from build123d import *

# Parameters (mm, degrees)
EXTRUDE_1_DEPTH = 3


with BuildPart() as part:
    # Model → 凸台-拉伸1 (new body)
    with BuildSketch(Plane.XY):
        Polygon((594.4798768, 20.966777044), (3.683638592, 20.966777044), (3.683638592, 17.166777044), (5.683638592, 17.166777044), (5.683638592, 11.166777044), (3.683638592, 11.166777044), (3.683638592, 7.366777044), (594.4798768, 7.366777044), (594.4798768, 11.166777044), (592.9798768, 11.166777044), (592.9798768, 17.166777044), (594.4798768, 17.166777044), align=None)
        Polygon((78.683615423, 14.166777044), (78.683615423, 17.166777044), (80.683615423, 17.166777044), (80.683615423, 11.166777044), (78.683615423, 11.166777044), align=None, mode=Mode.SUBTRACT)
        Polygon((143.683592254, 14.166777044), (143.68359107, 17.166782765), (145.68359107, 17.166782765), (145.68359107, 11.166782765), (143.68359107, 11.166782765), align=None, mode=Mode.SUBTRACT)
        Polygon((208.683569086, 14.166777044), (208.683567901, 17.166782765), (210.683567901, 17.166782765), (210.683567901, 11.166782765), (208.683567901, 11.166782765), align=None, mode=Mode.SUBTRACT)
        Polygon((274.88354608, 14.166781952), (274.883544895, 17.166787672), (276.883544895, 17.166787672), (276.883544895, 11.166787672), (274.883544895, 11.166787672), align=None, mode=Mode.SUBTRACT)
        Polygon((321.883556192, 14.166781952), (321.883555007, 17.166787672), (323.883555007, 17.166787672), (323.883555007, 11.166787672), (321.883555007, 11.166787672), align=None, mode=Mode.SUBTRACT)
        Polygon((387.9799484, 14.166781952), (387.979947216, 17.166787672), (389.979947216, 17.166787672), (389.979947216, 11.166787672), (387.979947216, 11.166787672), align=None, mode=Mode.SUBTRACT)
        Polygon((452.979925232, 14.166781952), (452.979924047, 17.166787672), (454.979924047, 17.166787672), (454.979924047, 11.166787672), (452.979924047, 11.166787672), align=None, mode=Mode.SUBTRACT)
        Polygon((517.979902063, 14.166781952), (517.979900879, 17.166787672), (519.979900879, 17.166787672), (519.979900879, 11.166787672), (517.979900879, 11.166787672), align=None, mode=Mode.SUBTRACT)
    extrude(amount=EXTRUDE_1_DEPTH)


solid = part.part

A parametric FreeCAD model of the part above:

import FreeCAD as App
import Part
import Sketcher

doc = App.newDocument("Part")
body = doc.addObject("PartDesign::Body", "Body")

# Sketch on XY plane
sketch1 = doc.addObject("Sketcher::SketchObject", "Sketch")
body.addObject(sketch1)
sketch1.AttachmentSupport = (doc.XY_Plane, [""])
sketch1.MapMode = "FlatFace"
sketch1.addGeometry([
    Part.LineSegment(App.Vector(594.5, 21, 0), App.Vector(3.7, 21, 0)),  # 0
    Part.LineSegment(App.Vector(3.7, 21, 0), App.Vector(3.7, 17.2, 0)),  # 1
    Part.LineSegment(App.Vector(3.7, 17.2, 0), App.Vector(5.7, 17.2, 0)),  # 2
    Part.LineSegment(App.Vector(5.7, 17.2, 0), App.Vector(5.7, 11.2, 0)),  # 3
    Part.LineSegment(App.Vector(5.7, 11.2, 0), App.Vector(3.7, 11.2, 0)),  # 4
    Part.LineSegment(App.Vector(3.7, 11.2, 0), App.Vector(3.7, 7.4, 0)),  # 5
    Part.LineSegment(App.Vector(3.7, 7.4, 0), App.Vector(594.5, 7.4, 0)),  # 6
    Part.LineSegment(App.Vector(594.5, 7.4, 0), App.Vector(594.5, 11.2, 0)),  # 7
    Part.LineSegment(App.Vector(594.5, 11.2, 0), App.Vector(593, 11.2, 0)),  # 8
    Part.LineSegment(App.Vector(593, 11.2, 0), App.Vector(593, 17.2, 0)),  # 9
    Part.LineSegment(App.Vector(593, 17.2, 0), App.Vector(594.5, 17.2, 0)),  # 10
    Part.LineSegment(App.Vector(594.5, 17.2, 0), App.Vector(594.5, 21, 0)),  # 11
    Part.LineSegment(App.Vector(78.7, 11.2, 0), App.Vector(78.7, 17.2, 0)),  # 12
    Part.LineSegment(App.Vector(78.7, 17.2, 0), App.Vector(80.7, 17.2, 0)),  # 13
    Part.LineSegment(App.Vector(80.7, 17.2, 0), App.Vector(80.7, 11.2, 0)),  # 14
    Part.LineSegment(App.Vector(80.7, 11.2, 0), App.Vector(78.7, 11.2, 0)),  # 15
    Part.LineSegment(App.Vector(143.7, 11.2, 0), App.Vector(143.7, 14.2, 0)),  # 16
    Part.LineSegment(App.Vector(143.7, 14.2, 0), App.Vector(143.7, 17.2, 0)),  # 17
    Part.LineSegment(App.Vector(143.7, 17.2, 0), App.Vector(145.7, 17.2, 0)),  # 18
    Part.LineSegment(App.Vector(145.7, 17.2, 0), App.Vector(145.7, 11.2, 0)),  # 19
    Part.LineSegment(App.Vector(145.7, 11.2, 0), App.Vector(143.7, 11.2, 0)),  # 20
    Part.LineSegment(App.Vector(208.7, 11.2, 0), App.Vector(208.7, 14.2, 0)),  # 21
    Part.LineSegment(App.Vector(208.7, 14.2, 0), App.Vector(208.7, 17.2, 0)),  # 22
    Part.LineSegment(App.Vector(208.7, 17.2, 0), App.Vector(210.7, 17.2, 0)),  # 23
    Part.LineSegment(App.Vector(210.7, 17.2, 0), App.Vector(210.7, 11.2, 0)),  # 24
    Part.LineSegment(App.Vector(210.7, 11.2, 0), App.Vector(208.7, 11.2, 0)),  # 25
    Part.LineSegment(App.Vector(274.9, 11.2, 0), App.Vector(274.9, 14.2, 0)),  # 26
    Part.LineSegment(App.Vector(274.9, 14.2, 0), App.Vector(274.9, 17.2, 0)),  # 27
    Part.LineSegment(App.Vector(274.9, 17.2, 0), App.Vector(276.9, 17.2, 0)),  # 28
    Part.LineSegment(App.Vector(276.9, 17.2, 0), App.Vector(276.9, 11.2, 0)),  # 29
    Part.LineSegment(App.Vector(276.9, 11.2, 0), App.Vector(274.9, 11.2, 0)),  # 30
    Part.LineSegment(App.Vector(321.9, 11.2, 0), App.Vector(321.9, 14.2, 0)),  # 31
    Part.LineSegment(App.Vector(321.9, 14.2, 0), App.Vector(321.9, 17.2, 0)),  # 32
    Part.LineSegment(App.Vector(321.9, 17.2, 0), App.Vector(323.9, 17.2, 0)),  # 33
    Part.LineSegment(App.Vector(323.9, 17.2, 0), App.Vector(323.9, 11.2, 0)),  # 34
    Part.LineSegment(App.Vector(323.9, 11.2, 0), App.Vector(321.9, 11.2, 0)),  # 35
    Part.LineSegment(App.Vector(388, 11.2, 0), App.Vector(388, 14.2, 0)),  # 36
    Part.LineSegment(App.Vector(388, 14.2, 0), App.Vector(388, 17.2, 0)),  # 37
    Part.LineSegment(App.Vector(388, 17.2, 0), App.Vector(390, 17.2, 0)),  # 38
    Part.LineSegment(App.Vector(390, 17.2, 0), App.Vector(390, 11.2, 0)),  # 39
    Part.LineSegment(App.Vector(390, 11.2, 0), App.Vector(388, 11.2, 0)),  # 40
    Part.LineSegment(App.Vector(453, 11.2, 0), App.Vector(453, 14.2, 0)),  # 41
    Part.LineSegment(App.Vector(453, 14.2, 0), App.Vector(453, 17.2, 0)),  # 42
    Part.LineSegment(App.Vector(453, 17.2, 0), App.Vector(455, 17.2, 0)),  # 43
    Part.LineSegment(App.Vector(455, 17.2, 0), App.Vector(455, 11.2, 0)),  # 44
    Part.LineSegment(App.Vector(455, 11.2, 0), App.Vector(453, 11.2, 0)),  # 45
    Part.LineSegment(App.Vector(518, 11.2, 0), App.Vector(518, 14.2, 0)),  # 46
    Part.LineSegment(App.Vector(518, 14.2, 0), App.Vector(518, 17.2, 0)),  # 47
    Part.LineSegment(App.Vector(518, 17.2, 0), App.Vector(520, 17.2, 0)),  # 48
    Part.LineSegment(App.Vector(520, 17.2, 0), App.Vector(520, 11.2, 0)),  # 49
    Part.LineSegment(App.Vector(520, 11.2, 0), App.Vector(518, 11.2, 0)),  # 50
], False)
sketch1.addConstraint([
    Sketcher.Constraint("Coincident", 0, 2, 1, 1),
    Sketcher.Constraint("Coincident", 1, 2, 2, 1),
    Sketcher.Constraint("Coincident", 2, 2, 3, 1),
    Sketcher.Constraint("Coincident", 3, 2, 4, 1),
    Sketcher.Constraint("Coincident", 4, 2, 5, 1),
    Sketcher.Constraint("Coincident", 5, 2, 6, 1),
    Sketcher.Constraint("Coincident", 6, 2, 7, 1),
    Sketcher.Constraint("Coincident", 7, 2, 8, 1),
    Sketcher.Constraint("Coincident", 8, 2, 9, 1),
    Sketcher.Constraint("Coincident", 9, 2, 10, 1),
    Sketcher.Constraint("Coincident", 10, 2, 11, 1),
    Sketcher.Constraint("Coincident", 11, 2, 0, 1),
    Sketcher.Constraint("Coincident", 12, 2, 13, 1),
    Sketcher.Constraint("Coincident", 13, 2, 14, 1),
    Sketcher.Constraint("Coincident", 14, 2, 15, 1),
    Sketcher.Constraint("Coincident", 15, 2, 12, 1),
    Sketcher.Constraint("Coincident", 16, 2, 17, 1),
    Sketcher.Constraint("Coincident", 17, 2, 18, 1),
    Sketcher.Constraint("Coincident", 18, 2, 19, 1),
    Sketcher.Constraint("Coincident", 19, 2, 20, 1),
    Sketcher.Constraint("Coincident", 20, 2, 16, 1),
    Sketcher.Constraint("Coincident", 21, 2, 22, 1),
    Sketcher.Constraint("Coincident", 22, 2, 23, 1),
    Sketcher.Constraint("Coincident", 23, 2, 24, 1),
    Sketcher.Constraint("Coincident", 24, 2, 25, 1),
    Sketcher.Constraint("Coincident", 25, 2, 21, 1),
    Sketcher.Constraint("Coincident", 26, 2, 27, 1),
    Sketcher.Constraint("Coincident", 27, 2, 28, 1),
    Sketcher.Constraint("Coincident", 28, 2, 29, 1),
    Sketcher.Constraint("Coincident", 29, 2, 30, 1),
    Sketcher.Constraint("Coincident", 30, 2, 26, 1),
    Sketcher.Constraint("Coincident", 31, 2, 32, 1),
    Sketcher.Constraint("Coincident", 32, 2, 33, 1),
    Sketcher.Constraint("Coincident", 33, 2, 34, 1),
    Sketcher.Constraint("Coincident", 34, 2, 35, 1),
    Sketcher.Constraint("Coincident", 35, 2, 31, 1),
    Sketcher.Constraint("Coincident", 36, 2, 37, 1),
    Sketcher.Constraint("Coincident", 37, 2, 38, 1),
    Sketcher.Constraint("Coincident", 38, 2, 39, 1),
    Sketcher.Constraint("Coincident", 39, 2, 40, 1),
    Sketcher.Constraint("Coincident", 40, 2, 36, 1),
    Sketcher.Constraint("Coincident", 41, 2, 42, 1),
    Sketcher.Constraint("Coincident", 42, 2, 43, 1),
    Sketcher.Constraint("Coincident", 43, 2, 44, 1),
    Sketcher.Constraint("Coincident", 44, 2, 45, 1),
    Sketcher.Constraint("Coincident", 45, 2, 41, 1),
    Sketcher.Constraint("Coincident", 46, 2, 47, 1),
    Sketcher.Constraint("Coincident", 47, 2, 48, 1),
    Sketcher.Constraint("Coincident", 48, 2, 49, 1),
    Sketcher.Constraint("Coincident", 49, 2, 50, 1),
    Sketcher.Constraint("Coincident", 50, 2, 46, 1),
    Sketcher.Constraint("Horizontal", 0),
    Sketcher.Constraint("Vertical", 1),
    Sketcher.Constraint("Horizontal", 2),
    Sketcher.Constraint("Vertical", 3),
    Sketcher.Constraint("Horizontal", 4),
    Sketcher.Constraint("Vertical", 5),
    Sketcher.Constraint("Horizontal", 6),
    Sketcher.Constraint("Vertical", 7),
    Sketcher.Constraint("Horizontal", 8),
    Sketcher.Constraint("Vertical", 9),
    Sketcher.Constraint("Horizontal", 10),
    Sketcher.Constraint("Vertical", 11),
    Sketcher.Constraint("Vertical", 12),
    Sketcher.Constraint("Horizontal", 13),
    Sketcher.Constraint("Vertical", 14),
    Sketcher.Constraint("Horizontal", 15),
    Sketcher.Constraint("Vertical", 16),
    Sketcher.Constraint("Vertical", 17),
    Sketcher.Constraint("Horizontal", 18),
    Sketcher.Constraint("Vertical", 19),
    Sketcher.Constraint("Horizontal", 20),
    Sketcher.Constraint("Vertical", 21),
    Sketcher.Constraint("Vertical", 22),
    Sketcher.Constraint("Horizontal", 23),
    Sketcher.Constraint("Vertical", 24),
    Sketcher.Constraint("Horizontal", 25),
    Sketcher.Constraint("Vertical", 26),
    Sketcher.Constraint("Vertical", 27),
    Sketcher.Constraint("Horizontal", 28),
    Sketcher.Constraint("Vertical", 29),
    Sketcher.Constraint("Horizontal", 30),
    Sketcher.Constraint("Vertical", 31),
    Sketcher.Constraint("Vertical", 32),
    Sketcher.Constraint("Horizontal", 33),
    Sketcher.Constraint("Vertical", 34),
    Sketcher.Constraint("Horizontal", 35),
    Sketcher.Constraint("Vertical", 36),
    Sketcher.Constraint("Vertical", 37),
    Sketcher.Constraint("Horizontal", 38),
    Sketcher.Constraint("Vertical", 39),
    Sketcher.Constraint("Horizontal", 40),
    Sketcher.Constraint("Vertical", 41),
    Sketcher.Constraint("Vertical", 42),
    Sketcher.Constraint("Horizontal", 43),
    Sketcher.Constraint("Vertical", 44),
    Sketcher.Constraint("Horizontal", 45),
    Sketcher.Constraint("Vertical", 46),
    Sketcher.Constraint("Vertical", 47),
    Sketcher.Constraint("Horizontal", 48),
    Sketcher.Constraint("Vertical", 49),
    Sketcher.Constraint("Horizontal", 50),
    Sketcher.Constraint("Horizontal", 4, 2, 7, 2),
    Sketcher.Constraint("Horizontal", 2, 2, 9, 2),
    Sketcher.Constraint("Horizontal", 10, 2, 12, 2),
    Sketcher.Constraint("Horizontal", 8, 2, 14, 2),
    Sketcher.Constraint("Horizontal", 16, 2, 21, 2),
    Sketcher.Constraint("Horizontal", 18, 2, 22, 2),
    Sketcher.Constraint("Horizontal", 20, 2, 24, 2),
    Sketcher.Constraint("Horizontal", 26, 2, 31, 2),
    Sketcher.Constraint("Horizontal", 28, 2, 32, 2),
    Sketcher.Constraint("Horizontal", 30, 2, 34, 2),
    Sketcher.Constraint("Horizontal", 31, 2, 36, 2),
    Sketcher.Constraint("Horizontal", 33, 2, 37, 2),
    Sketcher.Constraint("Horizontal", 35, 2, 39, 2),
    Sketcher.Constraint("Horizontal", 36, 2, 41, 2),
    Sketcher.Constraint("Horizontal", 38, 2, 42, 2),
    Sketcher.Constraint("Horizontal", 40, 2, 44, 2),
    Sketcher.Constraint("Horizontal", 41, 2, 46, 2),
    Sketcher.Constraint("Horizontal", 43, 2, 47, 2),
    Sketcher.Constraint("Horizontal", 45, 2, 49, 2),
    Sketcher.Constraint("Vertical", 1, 2, 4, 2),
    Sketcher.Constraint("Vertical", 7, 2, 10, 2),
    Sketcher.Constraint("Equal", 4, 13),
    Sketcher.Constraint("Equal", 15, 18),
    Sketcher.Constraint("Equal", 20, 23),
    Sketcher.Constraint("Equal", 25, 28),
    Sketcher.Constraint("Equal", 30, 33),
    Sketcher.Constraint("Equal", 35, 38),
    Sketcher.Constraint("Equal", 40, 43),
    Sketcher.Constraint("Equal", 45, 48),
    Sketcher.Constraint("Equal", 1, 5),
    Sketcher.Constraint("Equal", 14, 19),
    Sketcher.Constraint("Equal", 21, 26),
    Sketcher.Constraint("Equal", 22, 27),
    Sketcher.Constraint("DistanceX", 2, 1, 2, 2, 2.0),
    Sketcher.Constraint("DistanceY", 3, 2, 3, 1, 6.0),
    Sketcher.Constraint("DistanceX", 8, 2, 8, 1, 1.5),
    Sketcher.Constraint("DistanceY", 1, 2, 1, 1, 3.8),
    Sketcher.Constraint("DistanceY", 16, 2, 13, 2, 3.0),
    Sketcher.Constraint("DistanceY", 24, 2, 26, 2, 2.999999),
    Sketcher.Constraint("DistanceX", 0, 2, 0, 1, 590.796238),
    Sketcher.Constraint("DistanceX", -1, 1, 47, 2, 517.979901),
    Sketcher.Constraint("DistanceY", 16, 1, 16, 2, 2.999994),
    Sketcher.Constraint("DistanceX", -1, 1, 0, 2, 3.683639),
    Sketcher.Constraint("DistanceX", -1, 1, 17, 2, 143.683591),
    Sketcher.Constraint("DistanceX", -1, 1, 21, 2, 208.683569),
    Sketcher.Constraint("DistanceY", -1, 1, 26, 2, 14.166782),
    Sketcher.Constraint("DistanceX", -1, 1, 36, 2, 387.979948),
    Sketcher.Constraint("DistanceX", 24, 2, 26, 2, 64.199978),
    Sketcher.Constraint("DistanceX", 29, 2, 31, 2, 45.000011),
    Sketcher.Constraint("DistanceX", 39, 2, 41, 2, 62.999978),
    Sketcher.Constraint("DistanceX", -1, 1, 12, 2, 78.683615),
])
pad1 = doc.addObject("PartDesign::Pad", "Pad")
body.addObject(pad1)
pad1.Profile = sketch1
pad1.Length = 3

doc.recompute()
